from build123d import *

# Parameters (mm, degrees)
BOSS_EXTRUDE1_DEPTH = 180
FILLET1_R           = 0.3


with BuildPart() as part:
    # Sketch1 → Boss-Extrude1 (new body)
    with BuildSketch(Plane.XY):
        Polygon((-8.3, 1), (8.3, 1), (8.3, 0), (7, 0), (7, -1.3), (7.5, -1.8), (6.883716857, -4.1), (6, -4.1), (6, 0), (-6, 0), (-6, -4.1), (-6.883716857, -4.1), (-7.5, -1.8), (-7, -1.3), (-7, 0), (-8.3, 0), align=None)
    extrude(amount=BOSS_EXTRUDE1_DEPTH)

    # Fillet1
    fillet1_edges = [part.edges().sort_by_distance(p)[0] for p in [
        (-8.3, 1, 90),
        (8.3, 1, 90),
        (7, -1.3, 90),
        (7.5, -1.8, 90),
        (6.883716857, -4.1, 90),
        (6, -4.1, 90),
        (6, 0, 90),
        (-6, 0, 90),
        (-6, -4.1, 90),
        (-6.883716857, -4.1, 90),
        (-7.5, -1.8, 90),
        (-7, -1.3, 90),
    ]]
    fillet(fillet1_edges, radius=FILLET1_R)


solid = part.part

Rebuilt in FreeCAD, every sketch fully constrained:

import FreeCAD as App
import Part
import Sketcher

V = App.Vector
Q = App.Units.Quantity


def edges_at(feature, points):
    """Names of the edges that pass closest to the given points."""
    edges = feature.Shape.Edges
    near = lambda p: min(range(len(edges)), key=lambda i: edges[i].distToShape(Part.Vertex(*p))[0])
    return sorted({f"Edge{near(p) + 1}" for p in points})


def add_polygon(sketch, points):
    """Adds a closed chain of lines whose ends are joined by coincident constraints."""
    first, n = sketch.GeometryCount, len(points)
    for a, b in zip(points, points[1:] + points[:1]):
        sketch.addGeometry(Part.LineSegment(App.Vector(*a, 0), App.Vector(*b, 0)), False)
    for i in range(n):
        sketch.addConstraint(Sketcher.Constraint("Coincident", first + i, 2, first + (i + 1) % n, 1))

doc = App.newDocument("Part")
body = doc.addObject("PartDesign::Body", "Body")

# Sketch on XY plane
sketch1 = body.newObject("Sketcher::SketchObject", "Sketch")
sketch1.AttachmentSupport = (doc.getObject("XY_Plane"), [""])
sketch1.MapMode = "FlatFace"
add_polygon(sketch1, [(8.3, 1), (-8.3, 1), (-8.3, 0), (-7, 0), (-7, -1.3), (-7.5, -1.8), (-6.9, -4.1), (-6, -4.1), (-6, 0), (6, 0), (6, -4.1), (6.9, -4.1), (7.5, -1.8), (7, -1.3), (7, 0), (8.3, 0)])  # lines 0-15
sketch1.addConstraint(Sketcher.Constraint("Horizontal", 0))
sketch1.addConstraint(Sketcher.Constraint("Vertical", 1))
sketch1.addConstraint(Sketcher.Constraint("Horizontal", 2))
sketch1.addConstraint(Sketcher.Constraint("Vertical", 3))
sketch1.addConstraint(Sketcher.Constraint("Horizontal", 6))
sketch1.addConstraint(Sketcher.Constraint("Vertical", 7))
sketch1.addConstraint(Sketcher.Constraint("Horizontal", 8))
sketch1.addConstraint(Sketcher.Constraint("Vertical", 9))
sketch1.addConstraint(Sketcher.Constraint("Horizontal", 10))
sketch1.addConstraint(Sketcher.Constraint("Vertical", 13))
sketch1.addConstraint(Sketcher.Constraint("Horizontal", 14))
sketch1.addConstraint(Sketcher.Constraint("Vertical", 15))
sketch1.addConstraint(Sketcher.Constraint("Symmetric", 7, 2, 8, 2, -1, 1))
sketch1.addConstraint(Sketcher.Constraint("Symmetric", 2, 2, 13, 2, -1, 1))
sketch1.addConstraint(Sketcher.Constraint("Symmetric", 5, 2, 10, 2, -2))
sketch1.addConstraint(Sketcher.Constraint("Symmetric", 4, 2, 11, 2, -2))
sketch1.addConstraint(Sketcher.Constraint("Symmetric", 1, 2, 14, 2, -2))
sketch1.addConstraint(Sketcher.Constraint("Perpendicular", 4, 12))
sketch1.addConstraint(Sketcher.Constraint("Horizontal", 3, 2, 12, 2))
sketch1.addConstraint(Sketcher.Constraint("Equal", 14, 3))
sketch1.addConstraint(Sketcher.Constraint("DistanceX", 8, 1, 8, 2, Q("12 mm")))
sketch1.addConstraint(Sketcher.Constraint("DistanceY", 1, 2, 1, 1, Q("1 mm")))
sketch1.addConstraint(Sketcher.Constraint("Angle", 5, Q("-75 deg")))
sketch1.addConstraint(Sketcher.Constraint("DistanceX", 0, 2, 0, 1, Q("16.6 mm")))
sketch1.addConstraint(Sketcher.Constraint("DistanceX", 2, 1, 2, 2, Q("1.3 mm")))
sketch1.addConstraint(Sketcher.Constraint("DistanceY", 7, 1, 7, 2, Q("4.1 mm")))
sketch1.addConstraint(Sketcher.Constraint("DistanceX", 4, 2, -1, 1, Q("7.5 mm")))
pad1 = body.newObject("PartDesign::Pad", "Pad")
pad1.Profile = sketch1
pad1.Length = 180
doc.recompute()

fillet = body.newObject("PartDesign::Fillet", "Fillet")
fillet.Base = (pad1, edges_at(pad1, [
    (-8.3, 1, 90),
    (8.3, 1, 90),
    (7, -1.3, 90),
    (7.5, -1.8, 90),
    (6.884, -4.1, 90),
    (6, -4.1, 90),
    (6, 0, 90),
    (-6, 0, 90),
    (-6, -4.1, 90),
    (-6.884, -4.1, 90),
    (-7.5, -1.8, 90),
    (-7, -1.3, 90),
]))
fillet.Radius = 0.3

doc.recompute()
